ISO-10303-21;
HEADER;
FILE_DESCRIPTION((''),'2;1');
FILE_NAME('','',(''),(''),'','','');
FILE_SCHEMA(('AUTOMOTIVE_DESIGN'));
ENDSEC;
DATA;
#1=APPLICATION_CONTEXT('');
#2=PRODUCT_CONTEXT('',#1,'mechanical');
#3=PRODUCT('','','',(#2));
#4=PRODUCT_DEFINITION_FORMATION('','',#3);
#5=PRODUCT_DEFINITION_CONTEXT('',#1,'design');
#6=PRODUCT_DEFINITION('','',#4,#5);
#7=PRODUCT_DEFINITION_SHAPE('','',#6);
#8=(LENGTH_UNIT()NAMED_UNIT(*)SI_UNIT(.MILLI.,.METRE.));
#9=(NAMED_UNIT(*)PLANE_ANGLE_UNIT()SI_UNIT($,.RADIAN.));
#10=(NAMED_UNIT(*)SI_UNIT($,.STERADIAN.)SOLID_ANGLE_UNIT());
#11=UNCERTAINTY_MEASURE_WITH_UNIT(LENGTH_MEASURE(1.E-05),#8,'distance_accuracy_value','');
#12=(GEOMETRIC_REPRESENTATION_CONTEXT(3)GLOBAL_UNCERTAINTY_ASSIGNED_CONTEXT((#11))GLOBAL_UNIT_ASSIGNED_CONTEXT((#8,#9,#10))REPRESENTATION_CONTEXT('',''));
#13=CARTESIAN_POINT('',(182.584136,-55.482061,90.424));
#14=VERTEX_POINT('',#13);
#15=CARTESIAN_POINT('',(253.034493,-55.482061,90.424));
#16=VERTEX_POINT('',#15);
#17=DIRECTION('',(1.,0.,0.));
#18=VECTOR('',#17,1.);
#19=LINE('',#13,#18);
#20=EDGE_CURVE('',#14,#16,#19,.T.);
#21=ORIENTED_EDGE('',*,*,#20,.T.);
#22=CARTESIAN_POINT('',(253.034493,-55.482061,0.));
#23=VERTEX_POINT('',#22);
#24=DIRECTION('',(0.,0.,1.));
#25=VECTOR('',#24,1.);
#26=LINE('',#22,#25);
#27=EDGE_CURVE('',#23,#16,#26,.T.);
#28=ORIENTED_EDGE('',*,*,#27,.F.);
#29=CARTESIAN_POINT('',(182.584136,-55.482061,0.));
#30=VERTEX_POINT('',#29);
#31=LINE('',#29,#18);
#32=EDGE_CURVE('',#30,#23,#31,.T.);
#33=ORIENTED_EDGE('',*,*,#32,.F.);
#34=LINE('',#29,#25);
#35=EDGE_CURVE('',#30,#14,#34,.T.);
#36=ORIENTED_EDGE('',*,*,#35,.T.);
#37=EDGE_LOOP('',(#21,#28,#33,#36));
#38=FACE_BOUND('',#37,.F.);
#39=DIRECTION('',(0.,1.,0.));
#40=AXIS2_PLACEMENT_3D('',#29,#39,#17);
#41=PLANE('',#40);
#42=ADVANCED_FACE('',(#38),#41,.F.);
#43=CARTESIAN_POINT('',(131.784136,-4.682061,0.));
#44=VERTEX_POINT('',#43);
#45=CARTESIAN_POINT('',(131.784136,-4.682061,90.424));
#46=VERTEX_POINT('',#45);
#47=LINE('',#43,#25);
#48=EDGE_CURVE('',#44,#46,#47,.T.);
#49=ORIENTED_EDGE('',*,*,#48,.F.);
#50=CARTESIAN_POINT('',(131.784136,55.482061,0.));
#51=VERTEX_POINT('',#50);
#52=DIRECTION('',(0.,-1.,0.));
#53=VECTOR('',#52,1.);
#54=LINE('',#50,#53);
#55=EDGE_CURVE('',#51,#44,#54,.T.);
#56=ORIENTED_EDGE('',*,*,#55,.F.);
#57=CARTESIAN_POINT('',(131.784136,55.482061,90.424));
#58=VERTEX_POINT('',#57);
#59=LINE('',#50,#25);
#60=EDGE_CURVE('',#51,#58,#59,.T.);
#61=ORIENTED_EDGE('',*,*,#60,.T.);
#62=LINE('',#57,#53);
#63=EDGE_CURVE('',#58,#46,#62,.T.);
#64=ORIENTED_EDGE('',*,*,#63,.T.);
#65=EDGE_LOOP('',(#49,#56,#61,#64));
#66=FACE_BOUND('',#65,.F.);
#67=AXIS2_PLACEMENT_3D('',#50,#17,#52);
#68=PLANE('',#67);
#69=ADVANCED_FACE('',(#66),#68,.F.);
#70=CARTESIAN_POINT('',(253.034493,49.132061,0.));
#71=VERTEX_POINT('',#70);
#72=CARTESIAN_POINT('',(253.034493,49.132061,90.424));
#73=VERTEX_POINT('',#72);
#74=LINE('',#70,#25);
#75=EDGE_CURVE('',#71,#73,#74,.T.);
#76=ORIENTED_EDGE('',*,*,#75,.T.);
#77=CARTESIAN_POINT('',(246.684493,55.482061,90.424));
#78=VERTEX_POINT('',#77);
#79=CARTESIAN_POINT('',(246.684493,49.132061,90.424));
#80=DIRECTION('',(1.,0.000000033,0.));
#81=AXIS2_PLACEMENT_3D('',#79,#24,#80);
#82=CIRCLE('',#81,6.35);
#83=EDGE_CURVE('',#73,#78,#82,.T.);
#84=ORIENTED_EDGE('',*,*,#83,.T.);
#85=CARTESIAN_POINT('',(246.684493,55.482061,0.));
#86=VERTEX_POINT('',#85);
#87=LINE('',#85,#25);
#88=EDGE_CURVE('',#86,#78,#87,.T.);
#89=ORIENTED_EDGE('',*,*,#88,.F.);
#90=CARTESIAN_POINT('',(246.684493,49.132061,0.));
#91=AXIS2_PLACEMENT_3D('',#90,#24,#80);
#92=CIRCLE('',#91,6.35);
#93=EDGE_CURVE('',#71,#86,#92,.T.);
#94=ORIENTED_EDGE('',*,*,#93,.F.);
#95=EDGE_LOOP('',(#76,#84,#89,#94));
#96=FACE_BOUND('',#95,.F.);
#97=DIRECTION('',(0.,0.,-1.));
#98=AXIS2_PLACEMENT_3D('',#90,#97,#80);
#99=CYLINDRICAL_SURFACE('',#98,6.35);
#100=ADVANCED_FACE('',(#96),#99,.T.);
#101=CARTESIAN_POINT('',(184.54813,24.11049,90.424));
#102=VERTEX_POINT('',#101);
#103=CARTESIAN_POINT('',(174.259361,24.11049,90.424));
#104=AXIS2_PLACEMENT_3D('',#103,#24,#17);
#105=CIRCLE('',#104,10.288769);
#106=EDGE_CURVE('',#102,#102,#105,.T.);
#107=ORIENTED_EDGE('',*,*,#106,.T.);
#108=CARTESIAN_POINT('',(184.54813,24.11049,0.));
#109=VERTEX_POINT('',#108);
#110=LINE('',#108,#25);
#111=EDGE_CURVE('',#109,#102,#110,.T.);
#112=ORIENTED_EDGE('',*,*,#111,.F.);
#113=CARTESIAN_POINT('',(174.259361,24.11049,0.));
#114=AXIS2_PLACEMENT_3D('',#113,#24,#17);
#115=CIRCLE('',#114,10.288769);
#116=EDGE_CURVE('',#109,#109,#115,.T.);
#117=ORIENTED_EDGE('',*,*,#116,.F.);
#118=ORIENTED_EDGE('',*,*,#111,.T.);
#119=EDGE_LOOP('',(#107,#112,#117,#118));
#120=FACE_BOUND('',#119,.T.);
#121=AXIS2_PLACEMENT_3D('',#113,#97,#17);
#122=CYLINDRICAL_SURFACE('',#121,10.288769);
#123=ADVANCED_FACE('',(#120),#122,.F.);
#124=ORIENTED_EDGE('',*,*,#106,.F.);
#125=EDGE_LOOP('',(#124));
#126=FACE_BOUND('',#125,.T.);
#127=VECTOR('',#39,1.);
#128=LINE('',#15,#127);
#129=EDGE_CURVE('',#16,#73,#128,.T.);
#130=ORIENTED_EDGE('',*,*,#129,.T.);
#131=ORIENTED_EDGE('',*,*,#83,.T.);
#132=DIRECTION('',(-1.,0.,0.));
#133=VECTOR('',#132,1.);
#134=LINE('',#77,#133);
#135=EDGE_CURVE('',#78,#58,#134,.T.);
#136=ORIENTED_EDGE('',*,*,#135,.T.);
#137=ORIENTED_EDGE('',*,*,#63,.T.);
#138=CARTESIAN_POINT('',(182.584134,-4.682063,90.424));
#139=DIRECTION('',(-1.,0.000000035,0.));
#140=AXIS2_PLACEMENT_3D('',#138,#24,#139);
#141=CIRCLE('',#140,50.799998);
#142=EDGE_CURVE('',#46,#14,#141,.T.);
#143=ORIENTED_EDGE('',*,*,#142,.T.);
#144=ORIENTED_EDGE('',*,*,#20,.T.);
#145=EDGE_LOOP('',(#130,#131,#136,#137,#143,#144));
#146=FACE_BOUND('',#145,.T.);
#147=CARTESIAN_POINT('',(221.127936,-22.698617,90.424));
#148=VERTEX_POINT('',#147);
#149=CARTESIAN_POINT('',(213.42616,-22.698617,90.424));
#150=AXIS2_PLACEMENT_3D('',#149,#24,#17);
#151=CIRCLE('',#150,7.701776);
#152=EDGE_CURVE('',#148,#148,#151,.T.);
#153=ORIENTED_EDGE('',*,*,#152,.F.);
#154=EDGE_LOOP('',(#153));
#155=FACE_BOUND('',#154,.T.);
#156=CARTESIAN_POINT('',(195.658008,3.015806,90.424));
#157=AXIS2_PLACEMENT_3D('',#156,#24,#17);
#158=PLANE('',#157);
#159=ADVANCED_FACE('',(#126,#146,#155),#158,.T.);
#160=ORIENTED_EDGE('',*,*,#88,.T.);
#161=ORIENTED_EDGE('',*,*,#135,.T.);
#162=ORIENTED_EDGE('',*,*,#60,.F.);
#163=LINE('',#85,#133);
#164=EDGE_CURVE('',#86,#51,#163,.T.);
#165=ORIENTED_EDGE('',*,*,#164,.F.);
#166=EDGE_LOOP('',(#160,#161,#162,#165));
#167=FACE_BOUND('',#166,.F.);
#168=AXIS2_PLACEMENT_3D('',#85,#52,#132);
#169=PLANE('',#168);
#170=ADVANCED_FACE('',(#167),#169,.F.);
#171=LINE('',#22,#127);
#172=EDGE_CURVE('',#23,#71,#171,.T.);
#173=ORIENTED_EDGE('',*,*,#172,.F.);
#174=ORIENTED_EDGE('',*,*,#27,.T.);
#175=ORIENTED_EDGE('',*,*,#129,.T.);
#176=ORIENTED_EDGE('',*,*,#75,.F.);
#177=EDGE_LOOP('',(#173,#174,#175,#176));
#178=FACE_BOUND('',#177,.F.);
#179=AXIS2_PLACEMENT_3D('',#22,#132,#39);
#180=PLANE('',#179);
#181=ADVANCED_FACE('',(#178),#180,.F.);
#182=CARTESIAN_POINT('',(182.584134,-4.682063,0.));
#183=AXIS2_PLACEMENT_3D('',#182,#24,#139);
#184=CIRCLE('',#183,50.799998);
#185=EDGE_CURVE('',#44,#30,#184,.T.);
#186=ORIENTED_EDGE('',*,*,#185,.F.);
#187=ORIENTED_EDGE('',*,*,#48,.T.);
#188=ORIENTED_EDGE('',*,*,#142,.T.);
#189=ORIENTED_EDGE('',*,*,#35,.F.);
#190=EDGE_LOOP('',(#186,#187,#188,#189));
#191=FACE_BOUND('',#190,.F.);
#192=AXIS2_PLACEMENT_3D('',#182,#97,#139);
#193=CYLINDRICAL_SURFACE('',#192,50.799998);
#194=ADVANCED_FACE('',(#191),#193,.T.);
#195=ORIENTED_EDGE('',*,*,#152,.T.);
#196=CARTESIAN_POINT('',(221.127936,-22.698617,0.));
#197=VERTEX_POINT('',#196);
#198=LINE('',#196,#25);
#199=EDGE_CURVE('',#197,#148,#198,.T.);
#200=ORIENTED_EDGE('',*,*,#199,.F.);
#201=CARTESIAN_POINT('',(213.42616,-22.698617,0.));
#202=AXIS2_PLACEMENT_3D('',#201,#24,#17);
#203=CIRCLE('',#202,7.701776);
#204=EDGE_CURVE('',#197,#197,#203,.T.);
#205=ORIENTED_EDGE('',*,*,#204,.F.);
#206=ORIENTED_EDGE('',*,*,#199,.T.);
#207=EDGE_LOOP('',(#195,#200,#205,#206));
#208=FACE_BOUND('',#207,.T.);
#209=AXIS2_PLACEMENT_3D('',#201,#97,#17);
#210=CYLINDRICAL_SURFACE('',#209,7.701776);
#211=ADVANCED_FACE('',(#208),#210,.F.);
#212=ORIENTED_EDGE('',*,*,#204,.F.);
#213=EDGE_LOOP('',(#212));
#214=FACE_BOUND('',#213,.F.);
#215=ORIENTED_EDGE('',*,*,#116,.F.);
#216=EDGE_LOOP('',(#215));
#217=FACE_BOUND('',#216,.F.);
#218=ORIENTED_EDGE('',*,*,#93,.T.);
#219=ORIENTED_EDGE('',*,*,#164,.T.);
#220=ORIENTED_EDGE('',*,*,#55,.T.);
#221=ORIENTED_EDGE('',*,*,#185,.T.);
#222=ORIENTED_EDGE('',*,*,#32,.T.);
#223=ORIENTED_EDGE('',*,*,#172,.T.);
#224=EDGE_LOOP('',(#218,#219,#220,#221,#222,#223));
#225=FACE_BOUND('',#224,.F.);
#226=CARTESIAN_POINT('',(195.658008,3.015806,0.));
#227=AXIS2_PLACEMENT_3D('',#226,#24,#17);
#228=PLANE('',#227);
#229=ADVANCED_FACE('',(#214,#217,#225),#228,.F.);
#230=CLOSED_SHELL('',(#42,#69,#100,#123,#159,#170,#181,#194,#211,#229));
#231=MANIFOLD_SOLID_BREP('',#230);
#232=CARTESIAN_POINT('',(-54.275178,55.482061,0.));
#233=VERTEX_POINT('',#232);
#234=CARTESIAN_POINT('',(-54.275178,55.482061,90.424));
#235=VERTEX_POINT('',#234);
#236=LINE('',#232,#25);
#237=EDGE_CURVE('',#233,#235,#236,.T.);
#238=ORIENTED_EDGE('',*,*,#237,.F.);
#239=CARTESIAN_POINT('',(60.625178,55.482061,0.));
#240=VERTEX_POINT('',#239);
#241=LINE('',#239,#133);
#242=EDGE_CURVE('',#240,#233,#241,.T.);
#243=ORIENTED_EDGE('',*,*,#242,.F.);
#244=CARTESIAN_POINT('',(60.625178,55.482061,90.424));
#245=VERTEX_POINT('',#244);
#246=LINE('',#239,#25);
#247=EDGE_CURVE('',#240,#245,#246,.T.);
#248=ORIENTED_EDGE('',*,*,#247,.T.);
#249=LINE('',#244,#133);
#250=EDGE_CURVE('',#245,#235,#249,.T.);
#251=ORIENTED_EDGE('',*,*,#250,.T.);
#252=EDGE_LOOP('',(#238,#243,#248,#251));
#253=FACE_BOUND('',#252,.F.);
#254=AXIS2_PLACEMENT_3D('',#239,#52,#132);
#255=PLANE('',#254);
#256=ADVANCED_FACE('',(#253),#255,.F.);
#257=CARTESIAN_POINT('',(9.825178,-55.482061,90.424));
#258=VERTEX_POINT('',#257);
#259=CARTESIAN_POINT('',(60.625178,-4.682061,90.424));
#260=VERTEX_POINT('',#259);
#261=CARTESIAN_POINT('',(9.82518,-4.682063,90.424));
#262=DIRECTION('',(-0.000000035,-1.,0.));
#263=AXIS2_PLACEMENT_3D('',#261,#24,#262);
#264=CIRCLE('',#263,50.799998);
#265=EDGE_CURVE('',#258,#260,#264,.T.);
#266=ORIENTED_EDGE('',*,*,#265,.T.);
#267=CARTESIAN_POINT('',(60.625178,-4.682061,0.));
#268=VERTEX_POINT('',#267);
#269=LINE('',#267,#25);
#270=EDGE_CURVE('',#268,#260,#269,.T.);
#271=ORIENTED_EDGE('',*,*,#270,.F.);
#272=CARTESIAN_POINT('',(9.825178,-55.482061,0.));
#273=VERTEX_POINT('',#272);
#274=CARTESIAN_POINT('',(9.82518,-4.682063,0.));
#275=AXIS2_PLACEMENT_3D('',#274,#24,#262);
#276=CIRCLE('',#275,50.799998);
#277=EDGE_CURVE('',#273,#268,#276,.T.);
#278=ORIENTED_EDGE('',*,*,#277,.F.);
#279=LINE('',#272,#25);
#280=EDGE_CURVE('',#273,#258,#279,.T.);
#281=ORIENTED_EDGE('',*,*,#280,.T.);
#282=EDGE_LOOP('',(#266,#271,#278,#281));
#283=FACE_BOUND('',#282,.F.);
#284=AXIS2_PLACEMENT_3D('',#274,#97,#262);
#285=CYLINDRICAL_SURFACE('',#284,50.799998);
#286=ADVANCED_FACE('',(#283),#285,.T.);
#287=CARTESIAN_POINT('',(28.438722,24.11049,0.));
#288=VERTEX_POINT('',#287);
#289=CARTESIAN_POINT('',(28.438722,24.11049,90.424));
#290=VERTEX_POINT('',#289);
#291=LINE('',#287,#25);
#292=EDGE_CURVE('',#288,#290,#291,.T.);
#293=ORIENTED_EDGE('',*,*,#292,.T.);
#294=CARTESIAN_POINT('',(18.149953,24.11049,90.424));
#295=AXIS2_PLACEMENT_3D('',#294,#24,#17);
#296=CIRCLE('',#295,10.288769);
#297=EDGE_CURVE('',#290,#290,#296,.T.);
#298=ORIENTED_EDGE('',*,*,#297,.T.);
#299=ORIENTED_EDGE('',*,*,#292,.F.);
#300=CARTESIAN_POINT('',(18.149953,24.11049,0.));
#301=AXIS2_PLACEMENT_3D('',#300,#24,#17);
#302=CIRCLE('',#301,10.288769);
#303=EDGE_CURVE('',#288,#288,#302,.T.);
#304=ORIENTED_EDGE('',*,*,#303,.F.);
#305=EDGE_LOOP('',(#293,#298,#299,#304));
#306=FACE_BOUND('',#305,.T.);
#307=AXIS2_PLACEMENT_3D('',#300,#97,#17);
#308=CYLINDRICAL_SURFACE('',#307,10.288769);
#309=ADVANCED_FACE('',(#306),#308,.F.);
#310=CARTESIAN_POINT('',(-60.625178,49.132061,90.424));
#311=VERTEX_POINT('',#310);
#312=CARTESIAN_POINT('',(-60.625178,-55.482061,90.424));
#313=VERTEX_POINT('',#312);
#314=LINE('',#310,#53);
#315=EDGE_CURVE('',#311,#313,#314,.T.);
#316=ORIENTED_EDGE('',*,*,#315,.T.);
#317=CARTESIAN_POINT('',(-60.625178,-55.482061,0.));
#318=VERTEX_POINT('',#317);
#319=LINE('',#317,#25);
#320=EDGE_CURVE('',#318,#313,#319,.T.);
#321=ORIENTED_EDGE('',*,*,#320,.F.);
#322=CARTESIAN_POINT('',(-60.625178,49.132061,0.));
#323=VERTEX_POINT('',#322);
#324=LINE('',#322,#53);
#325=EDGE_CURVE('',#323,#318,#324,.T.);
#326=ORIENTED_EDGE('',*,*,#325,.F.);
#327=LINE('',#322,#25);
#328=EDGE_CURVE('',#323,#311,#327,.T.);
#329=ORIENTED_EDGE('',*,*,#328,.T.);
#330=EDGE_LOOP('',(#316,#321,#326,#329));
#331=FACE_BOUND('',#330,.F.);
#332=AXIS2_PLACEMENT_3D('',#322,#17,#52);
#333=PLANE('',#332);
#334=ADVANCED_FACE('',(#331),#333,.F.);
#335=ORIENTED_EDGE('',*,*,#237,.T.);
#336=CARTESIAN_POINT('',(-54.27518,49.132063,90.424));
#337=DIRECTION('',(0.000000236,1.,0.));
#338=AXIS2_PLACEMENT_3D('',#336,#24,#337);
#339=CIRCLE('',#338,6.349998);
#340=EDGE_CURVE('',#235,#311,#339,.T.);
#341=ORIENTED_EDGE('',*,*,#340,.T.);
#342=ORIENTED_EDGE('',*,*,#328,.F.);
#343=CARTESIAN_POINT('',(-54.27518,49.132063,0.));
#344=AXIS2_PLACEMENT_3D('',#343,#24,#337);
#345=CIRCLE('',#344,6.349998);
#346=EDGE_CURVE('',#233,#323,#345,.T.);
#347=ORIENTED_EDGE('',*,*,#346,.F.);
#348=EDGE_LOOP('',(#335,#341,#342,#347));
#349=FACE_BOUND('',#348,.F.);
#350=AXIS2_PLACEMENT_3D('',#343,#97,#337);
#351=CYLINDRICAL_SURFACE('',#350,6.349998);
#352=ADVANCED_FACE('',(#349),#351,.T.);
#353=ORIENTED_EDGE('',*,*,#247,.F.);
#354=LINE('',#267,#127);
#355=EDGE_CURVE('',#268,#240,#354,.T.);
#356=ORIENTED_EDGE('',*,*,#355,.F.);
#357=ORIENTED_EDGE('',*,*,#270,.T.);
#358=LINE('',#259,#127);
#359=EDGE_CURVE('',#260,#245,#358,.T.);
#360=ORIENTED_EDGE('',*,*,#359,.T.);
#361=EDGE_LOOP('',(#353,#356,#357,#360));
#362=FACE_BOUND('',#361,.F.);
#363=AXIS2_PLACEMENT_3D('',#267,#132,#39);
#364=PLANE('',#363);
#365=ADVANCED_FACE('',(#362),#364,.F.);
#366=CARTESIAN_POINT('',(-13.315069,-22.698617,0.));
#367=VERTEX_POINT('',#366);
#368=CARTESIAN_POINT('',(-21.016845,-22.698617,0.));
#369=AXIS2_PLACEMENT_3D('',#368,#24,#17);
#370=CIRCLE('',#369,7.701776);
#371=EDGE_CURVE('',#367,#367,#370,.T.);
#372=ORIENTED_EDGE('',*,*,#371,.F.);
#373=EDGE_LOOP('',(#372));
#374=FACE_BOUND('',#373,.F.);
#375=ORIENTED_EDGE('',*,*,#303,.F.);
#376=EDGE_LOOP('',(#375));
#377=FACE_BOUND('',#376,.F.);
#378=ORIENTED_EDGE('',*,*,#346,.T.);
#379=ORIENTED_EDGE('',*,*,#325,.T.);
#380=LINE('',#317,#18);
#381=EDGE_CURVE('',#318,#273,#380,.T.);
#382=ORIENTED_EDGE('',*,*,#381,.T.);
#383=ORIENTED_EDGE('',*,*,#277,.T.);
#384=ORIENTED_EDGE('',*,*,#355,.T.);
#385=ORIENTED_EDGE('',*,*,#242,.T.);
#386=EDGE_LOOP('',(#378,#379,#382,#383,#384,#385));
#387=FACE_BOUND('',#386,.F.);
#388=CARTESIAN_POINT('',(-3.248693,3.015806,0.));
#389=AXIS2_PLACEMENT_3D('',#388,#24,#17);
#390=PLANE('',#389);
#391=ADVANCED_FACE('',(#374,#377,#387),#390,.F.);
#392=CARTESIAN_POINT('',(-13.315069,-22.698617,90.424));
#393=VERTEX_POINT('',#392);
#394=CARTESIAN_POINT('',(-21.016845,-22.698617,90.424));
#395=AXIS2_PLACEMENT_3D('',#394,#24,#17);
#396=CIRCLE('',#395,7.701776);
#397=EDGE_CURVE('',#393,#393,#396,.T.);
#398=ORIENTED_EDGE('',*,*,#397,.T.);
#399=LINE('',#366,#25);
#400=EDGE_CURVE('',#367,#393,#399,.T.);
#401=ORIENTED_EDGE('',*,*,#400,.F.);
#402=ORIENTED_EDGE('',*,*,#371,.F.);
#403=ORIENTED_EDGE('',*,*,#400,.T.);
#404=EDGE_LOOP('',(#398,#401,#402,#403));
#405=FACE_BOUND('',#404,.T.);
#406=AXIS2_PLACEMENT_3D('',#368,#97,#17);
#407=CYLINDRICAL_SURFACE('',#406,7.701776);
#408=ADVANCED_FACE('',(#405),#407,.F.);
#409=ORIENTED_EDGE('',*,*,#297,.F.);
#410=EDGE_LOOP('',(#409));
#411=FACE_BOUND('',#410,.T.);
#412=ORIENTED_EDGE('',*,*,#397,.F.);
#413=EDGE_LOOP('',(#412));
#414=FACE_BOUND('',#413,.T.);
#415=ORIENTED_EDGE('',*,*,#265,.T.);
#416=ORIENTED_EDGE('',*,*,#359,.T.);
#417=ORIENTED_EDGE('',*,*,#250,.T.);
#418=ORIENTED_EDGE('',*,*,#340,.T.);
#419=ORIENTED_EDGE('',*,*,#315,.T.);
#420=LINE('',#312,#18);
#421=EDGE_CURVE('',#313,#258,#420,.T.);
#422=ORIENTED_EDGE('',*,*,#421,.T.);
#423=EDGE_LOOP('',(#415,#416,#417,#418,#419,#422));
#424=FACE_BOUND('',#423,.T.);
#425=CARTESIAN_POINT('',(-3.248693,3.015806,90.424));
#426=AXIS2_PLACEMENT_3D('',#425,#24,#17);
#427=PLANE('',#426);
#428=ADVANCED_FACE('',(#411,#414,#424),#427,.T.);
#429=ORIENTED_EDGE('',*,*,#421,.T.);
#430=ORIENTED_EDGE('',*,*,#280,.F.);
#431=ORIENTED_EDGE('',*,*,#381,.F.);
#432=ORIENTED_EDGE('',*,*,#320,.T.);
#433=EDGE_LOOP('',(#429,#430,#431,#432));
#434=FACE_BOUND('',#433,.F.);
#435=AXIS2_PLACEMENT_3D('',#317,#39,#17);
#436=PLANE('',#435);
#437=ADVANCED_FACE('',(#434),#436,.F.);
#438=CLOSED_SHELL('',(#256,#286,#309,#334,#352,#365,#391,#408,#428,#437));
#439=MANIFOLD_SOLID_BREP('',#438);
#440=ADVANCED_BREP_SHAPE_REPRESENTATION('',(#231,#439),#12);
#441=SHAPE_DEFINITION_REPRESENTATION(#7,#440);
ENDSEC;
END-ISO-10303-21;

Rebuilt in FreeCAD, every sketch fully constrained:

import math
import FreeCAD as App
import Part
import Sketcher
from FreeCAD import Vector
Q = App.Units.Quantity

doc = App.newDocument("Part")
params = doc.addObject("Spreadsheet::Sheet", "Params")
for row, (alias, value) in enumerate([
    ("sketch1_radius", "1.9999999 in"),
    ("sketch1_radius2", "0.25 in"),
    ("pad1_length", "3.56 in"),
], start=1):
    params.set(f"A{row}", alias)
    params.set(f"B{row}", "=" + value)
    params.setAlias(f"B{row}", alias)

body = doc.addObject("PartDesign::Body", "Body")
body.AllowCompound = True

# Sketch on XY plane
sketch1 = body.newObject("Sketcher::SketchObject", "Sketch")
sketch1.AttachmentSupport = (doc.getObject("XY_Plane"), [""])
sketch1.MapMode = "FlatFace"
sketch1.addGeometry(Part.ArcOfCircle(Part.Circle(Vector(183, -5, 0), Vector(0, 0, 1), 51), math.radians(180), math.radians(270)), False)
sketch1.addGeometry(Part.LineSegment(Vector(183, -55, 0), Vector(253, -55, 0)), False)
sketch1.addGeometry(Part.LineSegment(Vector(253, -55, 0), Vector(253, 49, 0)), False)
sketch1.addGeometry(Part.ArcOfCircle(Part.Circle(Vector(247, 49, 0), Vector(0, 0, 1), 6), math.radians(0), math.radians(90)), False)
sketch1.addGeometry(Part.LineSegment(Vector(247, 55, 0), Vector(132, 55, 0)), False)
sketch1.addGeometry(Part.LineSegment(Vector(132, 55, 0), Vector(132, -5, 0)), False)
sketch1.addGeometry(Part.Circle(Vector(213, -23, 0), Vector(0, 0, 1), 8), False)
sketch1.addGeometry(Part.Circle(Vector(174, 24, 0), Vector(0, 0, 1), 10), False)
sketch1.addGeometry(Part.LineSegment(Vector(-61, -55, 0), Vector(10, -55, 0)), False)
sketch1.addGeometry(Part.ArcOfCircle(Part.Circle(Vector(10, -5, 0), Vector(0, 0, 1), 51), math.radians(-90), math.radians(0)), False)
sketch1.addGeometry(Part.LineSegment(Vector(61, -5, 0), Vector(61, 55, 0)), False)
sketch1.addGeometry(Part.LineSegment(Vector(61, 55, 0), Vector(-54, 55, 0)), False)
sketch1.addGeometry(Part.ArcOfCircle(Part.Circle(Vector(-54, 49, 0), Vector(0, 0, 1), 6), math.radians(90), math.radians(180)), False)
sketch1.addGeometry(Part.LineSegment(Vector(-61, 49, 0), Vector(-61, -55, 0)), False)
sketch1.addGeometry(Part.Circle(Vector(-21, -23, 0), Vector(0, 0, 1), 8), False)
sketch1.addGeometry(Part.Circle(Vector(18, 24, 0), Vector(0, 0, 1), 10), False)
sketch1.addConstraint(Sketcher.Constraint("Tangent", 0, 2, 1, 1))
sketch1.addConstraint(Sketcher.Constraint("Coincident", 1, 2, 2, 1))
sketch1.addConstraint(Sketcher.Constraint("Tangent", 2, 2, 3, 1))
sketch1.addConstraint(Sketcher.Constraint("Tangent", 3, 2, 4, 1))
sketch1.addConstraint(Sketcher.Constraint("Coincident", 4, 2, 5, 1))
sketch1.addConstraint(Sketcher.Constraint("Tangent", 5, 2, 0, 1))
sketch1.addConstraint(Sketcher.Constraint("Tangent", 8, 2, 9, 1))
sketch1.addConstraint(Sketcher.Constraint("Tangent", 9, 2, 10, 1))
sketch1.addConstraint(Sketcher.Constraint("Coincident", 10, 2, 11, 1))
sketch1.addConstraint(Sketcher.Constraint("Tangent", 11, 2, 12, 1))
sketch1.addConstraint(Sketcher.Constraint("Tangent", 12, 2, 13, 1))
sketch1.addConstraint(Sketcher.Constraint("Coincident", 13, 2, 8, 1))
sketch1.addConstraint(Sketcher.Constraint("Horizontal", 1))
sketch1.addConstraint(Sketcher.Constraint("Vertical", 2))
sketch1.addConstraint(Sketcher.Constraint("Horizontal", 4))
sketch1.addConstraint(Sketcher.Constraint("Vertical", 5))
sketch1.addConstraint(Sketcher.Constraint("Horizontal", 8))
sketch1.addConstraint(Sketcher.Constraint("Vertical", 10))
sketch1.addConstraint(Sketcher.Constraint("Horizontal", 11))
sketch1.addConstraint(Sketcher.Constraint("Vertical", 13))
sketch1.addConstraint(Sketcher.Constraint("Equal", 0, 9))
sketch1.addConstraint(Sketcher.Constraint("Equal", 3, 12))
sketch1.addConstraint(Sketcher.Constraint("Equal", 6, 14))
sketch1.addConstraint(Sketcher.Constraint("Equal", 7, 15))
sketch1.addConstraint(Sketcher.Constraint("Symmetric", 10, 2, 13, 2, -1, 1))
sketch1.addConstraint(Sketcher.Constraint("Horizontal", 0, 3, 9, 3))
sketch1.addConstraint(Sketcher.Constraint("Horizontal", 3, 3, 12, 3))
sketch1.addConstraint(Sketcher.Constraint("Horizontal", 6, 3, 14, 3))
sketch1.addConstraint(Sketcher.Constraint("Horizontal", 7, 3, 15, 3))
sketch1.addConstraint(Sketcher.Constraint("Equal", 1, 8))
sketch1.addConstraint(Sketcher.Constraint("Radius", 0, Q("1.9999999 in")))
sketch1.addConstraint(Sketcher.Constraint("Radius", 3, Q("0.25 in")))
sketch1.addConstraint(Sketcher.Constraint("Diameter", 7, 20.577538))
sketch1.addConstraint(Sketcher.Constraint("DistanceX", 7, 3, 6, 3, Q("1.542 in")))
sketch1.addConstraint(Sketcher.Constraint("DistanceX", 14, 3, 15, 3, Q("1.5419999 in")))
sketch1.addConstraint(Sketcher.Constraint("Diameter", 6, 15.403552))
sketch1.addConstraint(Sketcher.Constraint("DistanceX", 1, 1, 1, 2, 70.450357))
sketch1.addConstraint(Sketcher.Constraint("DistanceY", 2, 1, 2, 2, 104.614122))
sketch1.addConstraint(Sketcher.Constraint("DistanceX", -1, 1, 6, 3, 213.42616))
sketch1.addConstraint(Sketcher.Constraint("DistanceY", -1, 1, 7, 3, 24.11049))
sketch1.addConstraint(Sketcher.Constraint("DistanceX", 7, 3, 3, 3, 72.425132))
sketch1.addConstraint(Sketcher.Constraint("DistanceY", 6, 3, 12, 3, 71.83068))
sketch1.addConstraint(Sketcher.Constraint("DistanceX", 14, 3, 0, 3, 203.600979))
sketch1.setExpression("Constraints[30]", "Params.sketch1_radius")
sketch1.setExpression("Constraints[31]", "Params.sketch1_radius2")
pad1 = body.newObject("PartDesign::Pad", "Pad")
pad1.Profile = sketch1
pad1.setExpression("Length", "Params.pad1_length")

doc.recompute()
